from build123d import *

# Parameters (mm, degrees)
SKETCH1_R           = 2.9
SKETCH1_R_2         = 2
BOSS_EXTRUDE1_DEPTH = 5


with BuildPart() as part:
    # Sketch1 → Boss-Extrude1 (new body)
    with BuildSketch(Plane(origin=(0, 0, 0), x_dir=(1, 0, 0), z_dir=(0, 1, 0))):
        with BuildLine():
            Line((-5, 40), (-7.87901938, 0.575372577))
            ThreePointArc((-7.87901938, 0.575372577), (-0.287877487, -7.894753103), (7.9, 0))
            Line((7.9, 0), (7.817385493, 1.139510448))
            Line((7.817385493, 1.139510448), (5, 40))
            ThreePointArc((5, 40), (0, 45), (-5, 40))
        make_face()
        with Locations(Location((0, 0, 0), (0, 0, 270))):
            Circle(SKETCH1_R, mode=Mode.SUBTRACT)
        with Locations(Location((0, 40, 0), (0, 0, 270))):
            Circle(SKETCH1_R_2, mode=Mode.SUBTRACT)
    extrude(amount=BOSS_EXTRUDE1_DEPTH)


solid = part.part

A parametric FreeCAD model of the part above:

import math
import FreeCAD as App
import Part
import Sketcher
from FreeCAD import Vector
Q = App.Units.Quantity

doc = App.newDocument("Part")
params = doc.addObject("Spreadsheet::Sheet", "Params")
for row, (alias, value) in enumerate([
    ("sketch1_diameter", "4 mm"),
    ("sketch1_radius", "5 mm"),
    ("sketch1_diameter2", "5.8 mm"),
    ("sketch1_radius2", "7.9 mm"),
    ("pad1_length", "5 mm"),
], start=1):
    params.set(f"A{row}", alias)
    params.set(f"B{row}", "=" + value)
    params.setAlias(f"B{row}", alias)

body = doc.addObject("PartDesign::Body", "Body")

# Sketch on XZ plane
sketch1 = doc.addObject("Sketcher::SketchObject", "Sketch")
body.addObject(sketch1)
sketch1.AttachmentSupport = (doc.XZ_Plane, [""])
sketch1.MapMode = "FlatFace"
sketch1.addGeometry([
    Part.LineSegment(Vector(-5, -40, 0), Vector(-7.879019, -0.575373, 0)),  # 0
    Part.ArcOfCircle(Part.Circle(Vector(0, 0, 0), Vector(0, 0, 1), 7.9), math.radians(0), math.radians(184.176663)),  # 1
    Part.LineSegment(Vector(7.9, 0, 0), Vector(7.817385, -1.13951, 0)),  # 2
    Part.LineSegment(Vector(7.817385, -1.13951, 0), Vector(5, -40, 0)),  # 3
    Part.ArcOfCircle(Part.Circle(Vector(0, -40, 0), Vector(0, 0, 1), 5), math.radians(180), math.radians(360)),  # 4
    Part.Circle(Vector(0, 0, 0), Vector(0, 0, 1), 2.9),  # 5
    Part.Circle(Vector(0, -40, 0), Vector(0, 0, 1), 2),  # 6
], False)
sketch1.addConstraint([
    Sketcher.Constraint("Tangent", 0, 2, 1, 2),
    Sketcher.Constraint("Coincident", 1, 1, 2, 1),
    Sketcher.Constraint("Coincident", 2, 2, 3, 1),
    Sketcher.Constraint("Coincident", 3, 2, 4, 2),
    Sketcher.Constraint("Coincident", 4, 1, 0, 1),
    Sketcher.Constraint("Coincident", 1, 3, -1, 1),
    Sketcher.Constraint("Coincident", 5, 3, -1, 1),
    Sketcher.Constraint("Coincident", 6, 3, 4, 3),
    Sketcher.Constraint("Symmetric", 3, 2, 4, 1, -2),
    Sketcher.Constraint("PointOnObject", 1, 1, -1),
    Sketcher.Constraint("Parallel", 2, 3),
    Sketcher.Constraint("Horizontal", 6, 3, 3, 2),
    Sketcher.Constraint("Diameter", 6, Q("4 mm")),
    Sketcher.Constraint("Radius", 4, Q("5 mm")),
    Sketcher.Constraint("Diameter", 5, Q("5.8 mm")),
    Sketcher.Constraint("Radius", 1, Q("7.9 mm")),
    Sketcher.Constraint("DistanceY", 4, 3, -1, 1, Q("40 mm")),
    Sketcher.Constraint("Distance", 2, Q("1.142501 mm")),
])
sketch1.setExpression("Constraints[12]", "Params.sketch1_diameter")
sketch1.setExpression("Constraints[13]", "Params.sketch1_radius")
sketch1.setExpression("Constraints[14]", "Params.sketch1_diameter2")
sketch1.setExpression("Constraints[15]", "Params.sketch1_radius2")
pad1 = doc.addObject("PartDesign::Pad", "Pad")
body.addObject(pad1)
pad1.Profile = sketch1
pad1.setExpression("Length", "Params.pad1_length")
pad1.Reversed = True

doc.recompute()
